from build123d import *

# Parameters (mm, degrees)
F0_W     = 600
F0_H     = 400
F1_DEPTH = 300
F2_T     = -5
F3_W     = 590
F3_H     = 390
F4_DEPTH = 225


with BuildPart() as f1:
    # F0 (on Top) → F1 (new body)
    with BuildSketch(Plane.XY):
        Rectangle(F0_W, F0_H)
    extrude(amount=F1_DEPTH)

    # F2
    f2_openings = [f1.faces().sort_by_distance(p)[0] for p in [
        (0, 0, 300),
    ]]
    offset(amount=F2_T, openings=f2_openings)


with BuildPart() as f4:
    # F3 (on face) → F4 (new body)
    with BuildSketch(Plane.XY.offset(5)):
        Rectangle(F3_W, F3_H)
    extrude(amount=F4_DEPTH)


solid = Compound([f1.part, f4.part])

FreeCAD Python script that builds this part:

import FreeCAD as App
import Part
import Sketcher

V = App.Vector


def faces_at(feature, points):
    """Names of the faces that lie closest to the given points."""
    faces = feature.Shape.Faces
    near = lambda p: min(range(len(faces)), key=lambda i: faces[i].distToShape(Part.Vertex(*p))[0])
    return sorted({f"Face{near(p) + 1}" for p in points})

doc = App.newDocument("Part")
params = doc.addObject("Spreadsheet::Sheet", "Params")
for row, (alias, value) in enumerate([
    ("sketch1_width", "600 mm"),
    ("sketch1_height", "400 mm"),
    ("pad1_length", "300 mm"),
    ("thickness_wall", "5 mm"),
    ("sketch2_width", "590 mm"),
    ("sketch2_height", "390 mm"),
    ("pad2_length", "225 mm"),
], start=1):
    params.set(f"A{row}", alias)
    params.set(f"B{row}", "=" + value)
    params.setAlias(f"B{row}", alias)

body = doc.addObject("PartDesign::Body", "Body")

sketch1 = doc.addObject("Sketcher::SketchObject", "Sketch")
body.addObject(sketch1)
sketch1.AttachmentSupport = (doc.XY_Plane, [""])
sketch1.MapMode = "FlatFace"
sketch1.addGeometry([
    Part.LineSegment(V(-300, 200, 0), V(-300, -200, 0)),
    Part.LineSegment(V(-300, -200, 0), V(300, -200, 0)),
    Part.LineSegment(V(300, -200, 0), V(300, 200, 0)),
    Part.LineSegment(V(300, 200, 0), V(-300, 200, 0)),
], False)
sketch1.addConstraint([
    Sketcher.Constraint("Coincident", 0, 2, 1, 1),
    Sketcher.Constraint("Coincident", 1, 2, 2, 1),
    Sketcher.Constraint("Coincident", 2, 2, 3, 1),
    Sketcher.Constraint("Coincident", 3, 2, 0, 1),
    Sketcher.Constraint("Vertical", 0),
    Sketcher.Constraint("Horizontal", 1),
    Sketcher.Constraint("Vertical", 2),
    Sketcher.Constraint("Horizontal", 3),
    Sketcher.Constraint("Symmetric", 0, 2, 2, 2, -1, 1),
    Sketcher.Constraint("DistanceX", 1, 1, 1, 2, 600.0),
    Sketcher.Constraint("DistanceY", 0, 2, 0, 1, 400.0),
])
sketch1.setExpression("Constraints[9]", "Params.sketch1_width")
sketch1.setExpression("Constraints[10]", "Params.sketch1_height")
pad1 = doc.addObject("PartDesign::Pad", "Pad")
body.addObject(pad1)
pad1.Profile = sketch1
pad1.setExpression("Length", "Params.pad1_length")
doc.recompute()

thickness = doc.addObject("PartDesign::Thickness", "Thickness")
body.addObject(thickness)
thickness.Base = (pad1, faces_at(pad1, [(0, 0, 300)]))
thickness.setExpression("Value", "Params.thickness_wall")
thickness.Reversed = True
thickness.Join = "Arc"
body2 = doc.addObject("PartDesign::Body", "Body001")

sketch2 = doc.addObject("Sketcher::SketchObject", "Sketch001")
body2.addObject(sketch2)
sketch2.AttachmentSupport = (doc.getObject("XY_Plane001"), [""])
sketch2.MapMode = "FlatFace"
sketch2.AttachmentOffset = App.Placement(V(0, 0, 5), App.Rotation())
sketch2.addGeometry([
    Part.LineSegment(V(-295, 195, 0), V(-295, -195, 0)),
    Part.LineSegment(V(-295, -195, 0), V(295, -195, 0)),
    Part.LineSegment(V(295, -195, 0), V(295, 195, 0)),
    Part.LineSegment(V(295, 195, 0), V(-295, 195, 0)),
], False)
sketch2.addConstraint([
    Sketcher.Constraint("Coincident", 0, 2, 1, 1),
    Sketcher.Constraint("Coincident", 1, 2, 2, 1),
    Sketcher.Constraint("Coincident", 2, 2, 3, 1),
    Sketcher.Constraint("Coincident", 3, 2, 0, 1),
    Sketcher.Constraint("Vertical", 0),
    Sketcher.Constraint("Horizontal", 1),
    Sketcher.Constraint("Vertical", 2),
    Sketcher.Constraint("Horizontal", 3),
    Sketcher.Constraint("Symmetric", 0, 2, 2, 2, -1, 1),
    Sketcher.Constraint("DistanceX", 1, 1, 1, 2, 590.0),
    Sketcher.Constraint("DistanceY", 0, 2, 0, 1, 390.0),
])
sketch2.setExpression("Constraints[9]", "Params.sketch2_width")
sketch2.setExpression("Constraints[10]", "Params.sketch2_height")
pad2 = doc.addObject("PartDesign::Pad", "Pad001")
body2.addObject(pad2)
pad2.Profile = sketch2
pad2.setExpression("Length", "Params.pad2_length")

doc.recompute()
